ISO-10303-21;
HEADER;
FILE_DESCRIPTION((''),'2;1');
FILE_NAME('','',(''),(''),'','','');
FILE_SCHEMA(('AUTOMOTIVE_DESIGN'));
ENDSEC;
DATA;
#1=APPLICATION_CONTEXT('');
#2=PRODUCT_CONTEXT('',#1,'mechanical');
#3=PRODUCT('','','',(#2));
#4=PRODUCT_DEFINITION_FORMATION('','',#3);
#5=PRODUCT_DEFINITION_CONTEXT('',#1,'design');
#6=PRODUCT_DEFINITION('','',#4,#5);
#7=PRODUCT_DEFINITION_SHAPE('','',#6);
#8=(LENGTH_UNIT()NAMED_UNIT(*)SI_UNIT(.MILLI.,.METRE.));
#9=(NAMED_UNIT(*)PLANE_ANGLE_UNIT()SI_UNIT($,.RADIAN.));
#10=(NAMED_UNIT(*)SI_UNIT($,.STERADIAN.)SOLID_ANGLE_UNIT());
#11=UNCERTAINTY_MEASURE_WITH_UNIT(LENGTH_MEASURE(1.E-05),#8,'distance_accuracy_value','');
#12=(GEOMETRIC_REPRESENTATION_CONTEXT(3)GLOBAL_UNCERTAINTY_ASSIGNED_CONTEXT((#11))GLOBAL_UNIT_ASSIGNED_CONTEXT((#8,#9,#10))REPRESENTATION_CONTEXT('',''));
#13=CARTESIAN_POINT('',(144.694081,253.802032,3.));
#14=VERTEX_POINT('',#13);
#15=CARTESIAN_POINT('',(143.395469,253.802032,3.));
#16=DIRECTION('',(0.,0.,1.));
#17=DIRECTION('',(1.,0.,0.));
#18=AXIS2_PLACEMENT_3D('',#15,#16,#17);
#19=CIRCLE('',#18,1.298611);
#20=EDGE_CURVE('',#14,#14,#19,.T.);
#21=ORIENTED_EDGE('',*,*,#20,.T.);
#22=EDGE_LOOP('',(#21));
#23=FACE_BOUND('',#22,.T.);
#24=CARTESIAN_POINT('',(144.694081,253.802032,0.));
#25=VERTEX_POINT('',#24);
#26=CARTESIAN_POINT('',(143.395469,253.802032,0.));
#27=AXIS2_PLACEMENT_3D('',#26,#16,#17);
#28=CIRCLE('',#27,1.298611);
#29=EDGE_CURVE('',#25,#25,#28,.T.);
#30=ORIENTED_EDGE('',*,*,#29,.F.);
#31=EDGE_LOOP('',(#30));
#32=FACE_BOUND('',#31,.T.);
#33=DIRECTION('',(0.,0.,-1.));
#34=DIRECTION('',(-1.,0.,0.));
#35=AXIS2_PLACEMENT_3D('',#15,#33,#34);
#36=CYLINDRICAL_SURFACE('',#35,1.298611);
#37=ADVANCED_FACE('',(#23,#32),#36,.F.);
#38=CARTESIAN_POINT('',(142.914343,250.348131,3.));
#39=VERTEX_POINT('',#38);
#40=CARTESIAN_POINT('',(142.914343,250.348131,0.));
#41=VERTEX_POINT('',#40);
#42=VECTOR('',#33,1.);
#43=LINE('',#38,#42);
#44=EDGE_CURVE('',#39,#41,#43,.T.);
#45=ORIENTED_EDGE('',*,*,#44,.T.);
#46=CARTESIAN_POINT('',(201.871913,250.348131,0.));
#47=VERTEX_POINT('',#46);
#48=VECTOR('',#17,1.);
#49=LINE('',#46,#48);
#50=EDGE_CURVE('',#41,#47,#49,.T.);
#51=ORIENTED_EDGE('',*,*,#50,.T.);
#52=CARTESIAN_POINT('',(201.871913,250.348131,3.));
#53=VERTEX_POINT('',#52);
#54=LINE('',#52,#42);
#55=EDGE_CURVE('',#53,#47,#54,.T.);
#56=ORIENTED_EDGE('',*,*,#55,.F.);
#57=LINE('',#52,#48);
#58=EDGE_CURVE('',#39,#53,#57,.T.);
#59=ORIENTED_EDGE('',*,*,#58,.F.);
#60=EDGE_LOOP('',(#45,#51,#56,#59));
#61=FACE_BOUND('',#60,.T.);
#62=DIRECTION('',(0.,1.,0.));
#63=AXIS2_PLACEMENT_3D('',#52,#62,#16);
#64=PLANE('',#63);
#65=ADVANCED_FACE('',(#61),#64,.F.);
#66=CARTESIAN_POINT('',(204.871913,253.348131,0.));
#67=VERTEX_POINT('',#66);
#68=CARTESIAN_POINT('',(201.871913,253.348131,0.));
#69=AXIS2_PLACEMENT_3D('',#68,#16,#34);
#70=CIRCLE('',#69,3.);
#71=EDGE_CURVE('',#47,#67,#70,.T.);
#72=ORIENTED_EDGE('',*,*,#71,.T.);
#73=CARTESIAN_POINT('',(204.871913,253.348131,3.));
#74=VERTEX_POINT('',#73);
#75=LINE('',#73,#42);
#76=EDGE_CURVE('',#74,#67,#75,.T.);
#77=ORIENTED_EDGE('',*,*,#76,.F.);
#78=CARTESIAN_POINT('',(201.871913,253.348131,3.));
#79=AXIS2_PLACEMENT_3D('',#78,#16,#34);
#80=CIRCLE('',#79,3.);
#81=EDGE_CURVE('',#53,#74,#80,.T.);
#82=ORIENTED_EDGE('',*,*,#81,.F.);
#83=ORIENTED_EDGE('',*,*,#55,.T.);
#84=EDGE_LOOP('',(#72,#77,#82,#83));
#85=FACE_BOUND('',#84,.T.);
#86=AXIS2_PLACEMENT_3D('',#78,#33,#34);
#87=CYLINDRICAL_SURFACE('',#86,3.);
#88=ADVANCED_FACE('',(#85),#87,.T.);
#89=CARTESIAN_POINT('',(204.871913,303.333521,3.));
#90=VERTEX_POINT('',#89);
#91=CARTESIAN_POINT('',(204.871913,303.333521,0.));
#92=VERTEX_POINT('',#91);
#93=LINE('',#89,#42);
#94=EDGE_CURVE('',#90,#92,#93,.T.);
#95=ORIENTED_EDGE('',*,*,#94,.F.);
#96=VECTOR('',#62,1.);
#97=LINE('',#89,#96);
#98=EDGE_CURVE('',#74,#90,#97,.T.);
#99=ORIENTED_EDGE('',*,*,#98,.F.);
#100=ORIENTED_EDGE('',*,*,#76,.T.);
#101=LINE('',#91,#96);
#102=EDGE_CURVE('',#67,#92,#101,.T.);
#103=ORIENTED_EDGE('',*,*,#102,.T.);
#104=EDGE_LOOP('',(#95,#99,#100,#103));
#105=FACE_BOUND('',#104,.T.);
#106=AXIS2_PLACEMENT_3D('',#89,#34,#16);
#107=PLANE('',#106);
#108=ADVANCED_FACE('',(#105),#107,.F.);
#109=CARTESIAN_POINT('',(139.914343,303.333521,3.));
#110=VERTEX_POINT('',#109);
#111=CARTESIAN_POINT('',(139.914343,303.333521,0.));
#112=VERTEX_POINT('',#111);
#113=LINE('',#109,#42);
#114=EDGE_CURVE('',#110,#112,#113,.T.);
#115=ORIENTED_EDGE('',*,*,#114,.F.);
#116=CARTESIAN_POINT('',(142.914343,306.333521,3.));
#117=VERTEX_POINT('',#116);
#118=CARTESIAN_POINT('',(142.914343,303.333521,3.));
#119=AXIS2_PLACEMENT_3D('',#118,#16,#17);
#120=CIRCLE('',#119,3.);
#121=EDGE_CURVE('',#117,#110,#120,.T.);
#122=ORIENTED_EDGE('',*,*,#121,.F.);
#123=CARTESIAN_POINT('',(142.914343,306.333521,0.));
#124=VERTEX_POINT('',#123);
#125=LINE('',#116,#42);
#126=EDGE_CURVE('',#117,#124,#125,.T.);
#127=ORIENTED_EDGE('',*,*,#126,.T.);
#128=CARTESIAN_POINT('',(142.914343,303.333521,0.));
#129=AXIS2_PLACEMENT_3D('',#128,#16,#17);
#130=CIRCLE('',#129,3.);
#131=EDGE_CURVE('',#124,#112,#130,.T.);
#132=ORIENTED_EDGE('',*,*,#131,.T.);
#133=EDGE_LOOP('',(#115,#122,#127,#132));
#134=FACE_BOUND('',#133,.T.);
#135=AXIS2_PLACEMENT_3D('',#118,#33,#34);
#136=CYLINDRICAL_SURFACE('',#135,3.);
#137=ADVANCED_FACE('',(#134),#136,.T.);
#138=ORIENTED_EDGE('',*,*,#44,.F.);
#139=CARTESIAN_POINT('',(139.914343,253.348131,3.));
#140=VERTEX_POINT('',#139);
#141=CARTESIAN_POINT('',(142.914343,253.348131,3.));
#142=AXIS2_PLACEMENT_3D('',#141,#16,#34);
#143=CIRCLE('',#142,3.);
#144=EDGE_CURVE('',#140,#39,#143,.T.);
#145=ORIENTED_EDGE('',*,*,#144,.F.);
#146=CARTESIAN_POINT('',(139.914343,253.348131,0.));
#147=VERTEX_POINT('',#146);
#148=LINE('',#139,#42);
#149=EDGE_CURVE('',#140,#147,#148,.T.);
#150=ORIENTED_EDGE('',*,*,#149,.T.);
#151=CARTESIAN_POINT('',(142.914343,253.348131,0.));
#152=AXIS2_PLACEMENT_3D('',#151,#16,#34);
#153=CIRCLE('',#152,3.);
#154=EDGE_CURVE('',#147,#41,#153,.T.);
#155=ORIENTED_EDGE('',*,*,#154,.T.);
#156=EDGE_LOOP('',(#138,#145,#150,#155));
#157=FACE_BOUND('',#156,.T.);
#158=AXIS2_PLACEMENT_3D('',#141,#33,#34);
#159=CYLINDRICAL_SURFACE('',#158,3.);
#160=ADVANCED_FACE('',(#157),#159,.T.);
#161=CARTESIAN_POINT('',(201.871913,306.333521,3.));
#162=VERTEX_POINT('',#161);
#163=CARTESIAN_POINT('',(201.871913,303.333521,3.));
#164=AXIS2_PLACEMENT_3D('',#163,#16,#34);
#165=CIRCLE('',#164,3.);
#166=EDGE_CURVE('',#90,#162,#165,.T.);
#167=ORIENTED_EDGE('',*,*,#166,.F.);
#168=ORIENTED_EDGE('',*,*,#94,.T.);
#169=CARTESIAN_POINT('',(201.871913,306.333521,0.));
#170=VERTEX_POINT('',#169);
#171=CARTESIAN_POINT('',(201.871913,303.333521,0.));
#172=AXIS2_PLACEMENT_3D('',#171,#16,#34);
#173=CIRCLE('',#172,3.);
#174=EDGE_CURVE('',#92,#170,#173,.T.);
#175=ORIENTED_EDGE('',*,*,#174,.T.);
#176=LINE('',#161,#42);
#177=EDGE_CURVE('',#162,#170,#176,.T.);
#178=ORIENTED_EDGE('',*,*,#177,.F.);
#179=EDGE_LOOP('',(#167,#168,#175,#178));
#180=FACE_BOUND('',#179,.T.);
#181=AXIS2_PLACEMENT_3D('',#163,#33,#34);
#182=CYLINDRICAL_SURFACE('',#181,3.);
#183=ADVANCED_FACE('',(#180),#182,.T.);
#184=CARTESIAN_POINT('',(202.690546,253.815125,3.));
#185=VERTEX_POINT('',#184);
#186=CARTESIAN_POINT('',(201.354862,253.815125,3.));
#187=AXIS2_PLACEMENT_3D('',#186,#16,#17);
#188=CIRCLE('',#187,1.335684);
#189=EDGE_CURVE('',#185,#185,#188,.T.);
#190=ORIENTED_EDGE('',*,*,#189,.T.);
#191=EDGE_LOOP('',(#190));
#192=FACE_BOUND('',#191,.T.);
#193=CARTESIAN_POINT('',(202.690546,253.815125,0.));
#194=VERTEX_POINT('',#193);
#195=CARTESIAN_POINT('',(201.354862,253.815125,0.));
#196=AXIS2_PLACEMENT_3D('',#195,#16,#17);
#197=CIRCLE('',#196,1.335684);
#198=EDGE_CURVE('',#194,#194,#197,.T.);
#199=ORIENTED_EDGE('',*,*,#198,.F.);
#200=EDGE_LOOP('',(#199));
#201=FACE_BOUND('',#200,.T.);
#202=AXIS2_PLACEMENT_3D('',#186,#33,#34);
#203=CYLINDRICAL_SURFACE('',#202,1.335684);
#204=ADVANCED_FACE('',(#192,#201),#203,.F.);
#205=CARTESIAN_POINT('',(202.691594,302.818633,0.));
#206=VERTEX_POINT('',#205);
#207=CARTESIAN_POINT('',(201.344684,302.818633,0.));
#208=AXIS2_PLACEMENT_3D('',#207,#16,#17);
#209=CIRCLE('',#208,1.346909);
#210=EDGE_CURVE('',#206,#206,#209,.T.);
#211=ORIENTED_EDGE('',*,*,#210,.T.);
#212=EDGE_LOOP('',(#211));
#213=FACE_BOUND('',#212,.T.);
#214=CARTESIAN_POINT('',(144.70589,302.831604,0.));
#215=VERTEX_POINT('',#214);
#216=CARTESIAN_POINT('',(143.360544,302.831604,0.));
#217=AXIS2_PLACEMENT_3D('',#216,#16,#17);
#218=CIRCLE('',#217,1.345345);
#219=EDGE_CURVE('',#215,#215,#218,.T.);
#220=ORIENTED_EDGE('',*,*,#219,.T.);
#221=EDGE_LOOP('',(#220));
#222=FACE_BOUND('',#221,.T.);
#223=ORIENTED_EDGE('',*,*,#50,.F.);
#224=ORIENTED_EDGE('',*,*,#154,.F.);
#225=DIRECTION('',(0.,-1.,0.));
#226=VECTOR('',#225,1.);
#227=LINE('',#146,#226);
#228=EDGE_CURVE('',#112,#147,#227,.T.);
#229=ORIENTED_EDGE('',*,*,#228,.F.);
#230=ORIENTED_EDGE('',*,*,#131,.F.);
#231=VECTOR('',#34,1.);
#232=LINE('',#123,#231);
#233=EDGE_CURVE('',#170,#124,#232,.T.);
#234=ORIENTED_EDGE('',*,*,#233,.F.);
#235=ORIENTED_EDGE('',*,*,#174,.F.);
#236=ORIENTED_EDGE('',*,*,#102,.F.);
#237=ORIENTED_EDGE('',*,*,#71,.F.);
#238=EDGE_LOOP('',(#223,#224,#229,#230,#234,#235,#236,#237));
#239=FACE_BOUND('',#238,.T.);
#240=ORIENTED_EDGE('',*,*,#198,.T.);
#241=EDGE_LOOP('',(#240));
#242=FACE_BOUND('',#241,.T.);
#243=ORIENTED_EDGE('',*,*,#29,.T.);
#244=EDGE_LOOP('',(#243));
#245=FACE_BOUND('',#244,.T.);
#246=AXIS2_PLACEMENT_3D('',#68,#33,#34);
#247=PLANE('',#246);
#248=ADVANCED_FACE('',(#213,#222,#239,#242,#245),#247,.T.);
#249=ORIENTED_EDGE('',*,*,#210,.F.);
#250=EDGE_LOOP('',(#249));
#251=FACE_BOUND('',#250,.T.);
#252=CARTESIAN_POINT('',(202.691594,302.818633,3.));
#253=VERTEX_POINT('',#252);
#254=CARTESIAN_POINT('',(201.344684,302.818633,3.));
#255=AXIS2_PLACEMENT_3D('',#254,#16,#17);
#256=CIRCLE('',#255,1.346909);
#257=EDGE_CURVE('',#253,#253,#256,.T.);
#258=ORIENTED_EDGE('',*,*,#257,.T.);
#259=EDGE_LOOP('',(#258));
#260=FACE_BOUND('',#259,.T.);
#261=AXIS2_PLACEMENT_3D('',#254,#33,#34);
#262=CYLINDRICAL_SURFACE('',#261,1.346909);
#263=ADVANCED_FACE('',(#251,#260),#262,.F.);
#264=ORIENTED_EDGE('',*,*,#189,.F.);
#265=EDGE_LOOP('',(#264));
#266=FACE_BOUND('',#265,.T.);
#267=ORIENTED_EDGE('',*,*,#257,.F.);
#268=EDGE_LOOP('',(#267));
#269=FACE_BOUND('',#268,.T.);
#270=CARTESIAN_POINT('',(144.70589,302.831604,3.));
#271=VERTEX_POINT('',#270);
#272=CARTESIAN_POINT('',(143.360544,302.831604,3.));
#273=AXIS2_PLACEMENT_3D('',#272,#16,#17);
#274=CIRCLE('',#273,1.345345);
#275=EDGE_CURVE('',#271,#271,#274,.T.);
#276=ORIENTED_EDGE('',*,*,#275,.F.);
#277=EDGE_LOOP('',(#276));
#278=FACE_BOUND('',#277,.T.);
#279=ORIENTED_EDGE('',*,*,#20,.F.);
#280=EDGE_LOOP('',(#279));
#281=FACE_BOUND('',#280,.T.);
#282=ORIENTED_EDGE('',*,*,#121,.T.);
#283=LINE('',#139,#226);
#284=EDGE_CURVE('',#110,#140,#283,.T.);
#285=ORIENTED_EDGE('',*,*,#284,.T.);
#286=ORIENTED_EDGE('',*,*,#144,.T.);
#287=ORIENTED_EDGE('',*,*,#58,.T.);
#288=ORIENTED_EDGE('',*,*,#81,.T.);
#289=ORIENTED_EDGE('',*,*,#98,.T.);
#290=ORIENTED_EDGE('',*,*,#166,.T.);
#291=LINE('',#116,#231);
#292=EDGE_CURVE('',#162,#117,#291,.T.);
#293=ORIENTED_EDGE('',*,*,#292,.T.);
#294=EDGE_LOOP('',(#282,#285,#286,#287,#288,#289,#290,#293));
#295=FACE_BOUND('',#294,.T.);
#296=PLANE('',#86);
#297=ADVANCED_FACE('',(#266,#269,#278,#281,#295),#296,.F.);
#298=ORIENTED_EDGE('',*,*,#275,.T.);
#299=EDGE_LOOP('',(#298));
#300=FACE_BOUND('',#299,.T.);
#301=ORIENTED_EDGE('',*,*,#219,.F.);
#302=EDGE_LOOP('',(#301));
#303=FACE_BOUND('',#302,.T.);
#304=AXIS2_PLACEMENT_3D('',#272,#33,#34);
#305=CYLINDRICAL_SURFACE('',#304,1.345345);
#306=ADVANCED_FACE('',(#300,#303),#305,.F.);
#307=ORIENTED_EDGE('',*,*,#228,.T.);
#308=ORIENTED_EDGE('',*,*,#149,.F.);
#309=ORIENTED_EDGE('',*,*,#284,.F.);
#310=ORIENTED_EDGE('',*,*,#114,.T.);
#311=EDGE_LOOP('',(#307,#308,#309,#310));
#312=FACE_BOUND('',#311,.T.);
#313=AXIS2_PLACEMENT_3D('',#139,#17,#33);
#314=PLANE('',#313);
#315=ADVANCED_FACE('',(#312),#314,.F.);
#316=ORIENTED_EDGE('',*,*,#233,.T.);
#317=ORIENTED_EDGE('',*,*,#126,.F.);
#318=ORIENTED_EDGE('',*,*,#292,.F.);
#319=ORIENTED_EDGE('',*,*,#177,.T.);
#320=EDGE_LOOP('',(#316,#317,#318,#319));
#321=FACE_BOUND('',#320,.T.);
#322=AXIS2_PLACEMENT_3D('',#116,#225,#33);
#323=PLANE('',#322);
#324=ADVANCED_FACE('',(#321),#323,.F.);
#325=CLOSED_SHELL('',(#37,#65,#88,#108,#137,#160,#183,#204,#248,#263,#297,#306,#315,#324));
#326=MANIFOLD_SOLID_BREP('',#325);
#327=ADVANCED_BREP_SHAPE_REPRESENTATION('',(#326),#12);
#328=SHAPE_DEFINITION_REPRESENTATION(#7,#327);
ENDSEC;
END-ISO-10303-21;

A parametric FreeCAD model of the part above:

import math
import FreeCAD as App
import Part
import Sketcher

V = App.Vector

doc = App.newDocument("Part")
body = doc.addObject("PartDesign::Body", "Body")

# Sketch on XY plane
sketch1 = body.newObject("Sketcher::SketchObject", "Sketch")
sketch1.AttachmentSupport = (doc.getObject("XY_Plane"), [""])
sketch1.MapMode = "FlatFace"
sketch1.addGeometry([
    Part.LineSegment(V(201.9, 306.3, 0), V(142.9, 306.3, 0)),  # 0
    Part.ArcOfCircle(Part.Circle(V(142.9, 303.3, 0), V(0, 0, 1), 3), math.radians(90), math.radians(180)),  # 1
    Part.LineSegment(V(139.9, 303.3, 0), V(139.9, 253.3, 0)),  # 2
    Part.ArcOfCircle(Part.Circle(V(142.9, 253.3, 0), V(0, 0, 1), 3), math.radians(-180), math.radians(-90)),  # 3
    Part.LineSegment(V(142.9, 250.3, 0), V(201.9, 250.3, 0)),  # 4
    Part.ArcOfCircle(Part.Circle(V(201.9, 253.3, 0), V(0, 0, 1), 3), math.radians(-90), math.radians(0)),  # 5
    Part.LineSegment(V(204.9, 253.3, 0), V(204.9, 303.3, 0)),  # 6
    Part.ArcOfCircle(Part.Circle(V(201.9, 303.3, 0), V(0, 0, 1), 3), math.radians(0), math.radians(90)),  # 7
    Part.Circle(V(201.4, 253.8, 0), V(0, 0, 1), 1.3),  # 8
    Part.Circle(V(143.4, 253.8, 0), V(0, 0, 1), 1.3),  # 9
    Part.Circle(V(201.3, 302.8, 0), V(0, 0, 1), 1.3),  # 10
    Part.Circle(V(143.4, 302.8, 0), V(0, 0, 1), 1.3),  # 11
], False)
sketch1.addConstraint([
    Sketcher.Constraint("Tangent", 0, 2, 1, 1),
    Sketcher.Constraint("Tangent", 1, 2, 2, 1),
    Sketcher.Constraint("Tangent", 2, 2, 3, 1),
    Sketcher.Constraint("Tangent", 3, 2, 4, 1),
    Sketcher.Constraint("Tangent", 4, 2, 5, 1),
    Sketcher.Constraint("Tangent", 5, 2, 6, 1),
    Sketcher.Constraint("Tangent", 6, 2, 7, 1),
    Sketcher.Constraint("Tangent", 7, 2, 0, 1),
    Sketcher.Constraint("Horizontal", 0),
    Sketcher.Constraint("Vertical", 2),
    Sketcher.Constraint("Horizontal", 4),
    Sketcher.Constraint("Vertical", 6),
    Sketcher.Constraint("Equal", 1, 3),
    Sketcher.Constraint("Equal", 3, 5),
    Sketcher.Constraint("Equal", 5, 7),
    Sketcher.Constraint("Radius", 1, 3.0),
    Sketcher.Constraint("Diameter", 10, 2.693818),
    Sketcher.Constraint("Diameter", 11, 2.69069),
    Sketcher.Constraint("Diameter", 8, 2.671368),
    Sketcher.Constraint("Diameter", 9, 2.597223),
    Sketcher.Constraint("DistanceX", 0, 2, 0, 1, 58.95757),
    Sketcher.Constraint("DistanceY", 2, 2, 2, 1, 49.98539),
    Sketcher.Constraint("DistanceY", 3, 3, 9, 3, 0.453901),
    Sketcher.Constraint("DistanceY", 9, 3, 10, 3, 49.016601),
    Sketcher.Constraint("DistanceX", 1, 3, 11, 3, 0.446201),
    Sketcher.Constraint("DistanceY", -1, 1, 1, 3, 303.333521),
    Sketcher.Constraint("DistanceX", -1, 1, 9, 3, 143.395469),
    Sketcher.Constraint("DistanceX", 8, 3, 5, 3, 0.517051),
    Sketcher.Constraint("DistanceX", 10, 3, 7, 3, 0.527229),
    Sketcher.Constraint("DistanceY", 8, 3, 10, 3, 49.003508),
    Sketcher.Constraint("DistanceY", 10, 3, 11, 3, 0.012971),
    Sketcher.Constraint("DistanceX", -1, 1, 1, 3, 142.914343),
])
pad1 = body.newObject("PartDesign::Pad", "Pad")
pad1.Profile = sketch1
pad1.Length = 3

doc.recompute()
